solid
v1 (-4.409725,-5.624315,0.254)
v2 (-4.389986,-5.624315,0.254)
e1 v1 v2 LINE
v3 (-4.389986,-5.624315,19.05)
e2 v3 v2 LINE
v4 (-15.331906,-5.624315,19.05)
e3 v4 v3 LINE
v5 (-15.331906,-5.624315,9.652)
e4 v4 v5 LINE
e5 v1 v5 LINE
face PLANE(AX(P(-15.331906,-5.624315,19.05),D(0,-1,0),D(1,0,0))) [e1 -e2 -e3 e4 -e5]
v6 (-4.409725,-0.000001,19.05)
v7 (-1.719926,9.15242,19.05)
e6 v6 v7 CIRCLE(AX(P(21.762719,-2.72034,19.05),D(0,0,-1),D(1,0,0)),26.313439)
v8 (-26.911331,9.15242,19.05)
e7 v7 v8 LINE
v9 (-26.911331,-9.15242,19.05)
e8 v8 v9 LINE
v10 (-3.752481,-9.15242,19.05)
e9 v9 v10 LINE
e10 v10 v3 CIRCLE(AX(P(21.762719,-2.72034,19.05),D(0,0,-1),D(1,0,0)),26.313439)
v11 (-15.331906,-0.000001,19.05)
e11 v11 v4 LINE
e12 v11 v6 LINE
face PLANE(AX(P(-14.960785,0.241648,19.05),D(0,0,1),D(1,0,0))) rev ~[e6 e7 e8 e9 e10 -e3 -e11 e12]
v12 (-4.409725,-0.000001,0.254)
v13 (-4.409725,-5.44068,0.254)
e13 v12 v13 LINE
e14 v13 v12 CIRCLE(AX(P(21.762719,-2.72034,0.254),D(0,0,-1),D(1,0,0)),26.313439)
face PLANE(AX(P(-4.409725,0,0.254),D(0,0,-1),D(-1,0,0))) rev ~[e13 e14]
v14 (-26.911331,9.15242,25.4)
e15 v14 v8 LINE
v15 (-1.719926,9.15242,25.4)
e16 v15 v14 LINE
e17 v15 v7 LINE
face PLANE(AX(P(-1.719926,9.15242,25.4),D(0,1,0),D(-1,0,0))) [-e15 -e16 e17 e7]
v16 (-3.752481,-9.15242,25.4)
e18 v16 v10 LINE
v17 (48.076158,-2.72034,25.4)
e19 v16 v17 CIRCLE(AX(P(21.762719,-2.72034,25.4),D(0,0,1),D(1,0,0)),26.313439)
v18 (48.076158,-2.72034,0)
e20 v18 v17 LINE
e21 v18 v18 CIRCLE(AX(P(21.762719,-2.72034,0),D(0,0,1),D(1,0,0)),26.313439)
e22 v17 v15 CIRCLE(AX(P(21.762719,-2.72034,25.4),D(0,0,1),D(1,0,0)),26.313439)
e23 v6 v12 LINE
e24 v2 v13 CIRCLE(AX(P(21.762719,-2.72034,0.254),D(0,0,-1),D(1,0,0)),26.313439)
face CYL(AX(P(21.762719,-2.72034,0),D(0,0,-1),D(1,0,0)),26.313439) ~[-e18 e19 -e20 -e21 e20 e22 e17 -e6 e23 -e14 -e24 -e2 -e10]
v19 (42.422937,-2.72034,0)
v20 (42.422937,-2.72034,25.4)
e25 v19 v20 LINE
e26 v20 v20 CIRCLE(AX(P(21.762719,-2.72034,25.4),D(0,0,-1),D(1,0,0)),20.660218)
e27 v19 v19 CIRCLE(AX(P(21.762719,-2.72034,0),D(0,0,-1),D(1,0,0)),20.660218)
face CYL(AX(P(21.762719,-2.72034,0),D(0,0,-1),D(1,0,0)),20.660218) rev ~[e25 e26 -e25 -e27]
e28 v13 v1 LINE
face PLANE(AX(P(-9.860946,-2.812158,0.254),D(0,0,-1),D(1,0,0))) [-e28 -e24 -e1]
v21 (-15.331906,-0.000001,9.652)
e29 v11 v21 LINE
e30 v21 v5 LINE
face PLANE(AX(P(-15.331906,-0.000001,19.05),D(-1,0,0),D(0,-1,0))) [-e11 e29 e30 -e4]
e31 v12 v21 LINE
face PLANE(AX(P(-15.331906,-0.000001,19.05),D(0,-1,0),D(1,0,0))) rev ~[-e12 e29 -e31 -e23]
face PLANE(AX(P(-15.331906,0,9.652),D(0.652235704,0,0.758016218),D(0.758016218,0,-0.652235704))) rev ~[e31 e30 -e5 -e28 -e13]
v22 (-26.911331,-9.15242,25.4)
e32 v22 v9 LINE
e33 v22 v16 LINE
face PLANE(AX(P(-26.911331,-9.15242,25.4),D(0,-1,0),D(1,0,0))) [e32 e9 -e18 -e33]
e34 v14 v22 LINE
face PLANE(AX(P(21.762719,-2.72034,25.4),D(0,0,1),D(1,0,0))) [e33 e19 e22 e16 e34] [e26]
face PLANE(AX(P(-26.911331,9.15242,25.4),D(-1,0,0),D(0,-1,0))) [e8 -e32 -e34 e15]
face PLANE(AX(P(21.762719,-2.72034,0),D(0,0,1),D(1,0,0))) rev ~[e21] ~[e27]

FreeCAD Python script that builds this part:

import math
import FreeCAD as App
import Part
import Sketcher
from FreeCAD import Vector
Q = App.Units.Quantity

doc = App.newDocument("Part")
body = doc.addObject("PartDesign::Body", "Body")

sketch1 = body.newObject("Sketcher::SketchObject", "Sketch")
sketch1.AttachmentSupport = (doc.getObject("XY_Plane"), [""])
sketch1.MapMode = "FlatFace"
sketch1.addGeometry(Part.Circle(Vector(22, -3, 0), Vector(0, 0, 1), 26), False)
sketch1.addConstraint([
    Sketcher.Constraint("Diameter", 0, Q("52.626878 mm")),
    Sketcher.Constraint("DistanceX", -1, 1, 0, 3, Q("0.8568 in")),
    Sketcher.Constraint("DistanceY", 0, 3, -1, 1, Q("0.1071 in")),
])
pad1 = body.newObject("PartDesign::Pad", "Pad")
pad1.Profile = sketch1
pad1.Length = Q("1 in")

sketch2 = body.newObject("Sketcher::SketchObject", "Sketch001")
sketch2.AttachmentSupport = (doc.getObject("XY_Plane"), [""])
sketch2.MapMode = "FlatFace"
sketch2.addGeometry(Part.Circle(Vector(22, -3, 0), Vector(0, 0, 1), 21), False)
sketch2.addConstraint([
    Sketcher.Constraint("Diameter", 0, Q("41.320436 mm")),
    Sketcher.Constraint("DistanceX", -1, 1, 0, 3, Q("0.8568 in")),
    Sketcher.Constraint("DistanceY", 0, 3, -1, 1, Q("0.1071 in")),
])
pocket1 = body.newObject("PartDesign::Pocket", "Pocket")
pocket1.Profile = sketch2
pocket1.Type = "ThroughAll"
pocket1.Reversed = True

sketch3 = body.newObject("Sketcher::SketchObject", "Sketch002")
sketch3.AttachmentSupport = (doc.getObject("XY_Plane"), [""])
sketch3.MapMode = "FlatFace"
sketch3.AttachmentOffset = App.Placement(Vector(0, 0, 1 * 25.4), App.Rotation())
sketch3.addGeometry([
    Part.ArcOfCircle(Part.Circle(Vector(22, -3, 0), Vector(0, 0, 1), 26), math.radians(153), math.radians(194)),
    Part.LineSegment(Vector(-2, 9, 0), Vector(-27, 9, 0)),
    Part.LineSegment(Vector(-27, 9, 0), Vector(-27, -9, 0)),
    Part.LineSegment(Vector(-27, -9, 0), Vector(-4, -9, 0)),
], False)
sketch3.addConstraint([
    Sketcher.Constraint("Coincident", 0, 1, 1, 1),
    Sketcher.Constraint("Coincident", 1, 2, 2, 1),
    Sketcher.Constraint("Coincident", 2, 2, 3, 1),
    Sketcher.Constraint("Coincident", 3, 2, 0, 2),
    Sketcher.Constraint("Horizontal", 1),
    Sketcher.Constraint("Vertical", 2),
    Sketcher.Constraint("Horizontal", 3),
    Sketcher.Constraint("DistanceX", -1, 1, 0, 3, Q("0.8567998 in")),
    Sketcher.Constraint("DistanceY", 0, 3, -1, 1, Q("0.1071 in")),
    Sketcher.Constraint("Radius", 0, Q("26.313436 mm")),
    Sketcher.Constraint("DistanceX", 3, 1, 3, 2, Q("23.158851 mm")),
    Sketcher.Constraint("DistanceY", 2, 2, 2, 1, Q("18.30484 mm")),
    Sketcher.Constraint("DistanceX", 1, 2, 1, 1, Q("25.191405 mm")),
])
pad2 = body.newObject("PartDesign::Pad", "Pad001")
pad2.Profile = sketch3
pad2.Length = Q("0.25 in")
pad2.Reversed = True

sketch4 = body.newObject("Sketcher::SketchObject", "Sketch003")
sketch4.AttachmentSupport = (doc.getObject("XY_Plane"), [""])
sketch4.MapMode = "FlatFace"
sketch4.AttachmentOffset = App.Placement(Vector(0, 0, 0.75 * 25.4), App.Rotation())
sketch4.addGeometry([
    Part.LineSegment(Vector(-15, -6, 0), Vector(-15, 0, 0)),
    Part.LineSegment(Vector(-15, 0, 0), Vector(-4, 0, 0)),
    Part.LineSegment(Vector(-4, 0, 0), Vector(-4, -6, 0)),
    Part.LineSegment(Vector(-4, -6, 0), Vector(-15, -6, 0)),
], False)
sketch4.addConstraint([
    Sketcher.Constraint("Coincident", 0, 2, 1, 1),
    Sketcher.Constraint("Coincident", 1, 2, 2, 1),
    Sketcher.Constraint("Coincident", 2, 2, 3, 1),
    Sketcher.Constraint("Coincident", 3, 2, 0, 1),
    Sketcher.Constraint("Vertical", 0),
    Sketcher.Constraint("Horizontal", 1),
    Sketcher.Constraint("Vertical", 2),
    Sketcher.Constraint("Horizontal", 3),
    Sketcher.Constraint("PointOnObject", 0, 2, -1),
    Sketcher.Constraint("DistanceX", 1, 1, 1, 2, Q("10.94192 mm")),
    Sketcher.Constraint("DistanceY", 0, 1, 0, 2, Q("5.624315 mm")),
    Sketcher.Constraint("DistanceX", 0, 2, -1, 1, Q("15.331906 mm")),
])
pad3 = body.newObject("PartDesign::Pad", "Pad002")
pad3.Profile = sketch4
pad3.Length = Q("0.74 in")
pad3.Reversed = True

sketch5 = body.newObject("Sketcher::SketchObject", "Sketch004")
sketch5.AttachmentSupport = (doc.getObject("XZ_Plane"), [""])
sketch5.MapMode = "FlatFace"
sketch5.addGeometry([
    Part.LineSegment(Vector(-15, 0, 0), Vector(-15, 10, 0)),
    Part.LineSegment(Vector(-15, 10, 0), Vector(-4, 0, 0)),
    Part.LineSegment(Vector(-4, 0, 0), Vector(-15, 0, 0)),
], False)
sketch5.addConstraint([
    Sketcher.Constraint("Coincident", 0, 2, 1, 1),
    Sketcher.Constraint("Coincident", 1, 2, 2, 1),
    Sketcher.Constraint("Coincident", 2, 2, 0, 1),
    Sketcher.Constraint("Vertical", 0),
    Sketcher.Constraint("Horizontal", 2),
    Sketcher.Constraint("DistanceY", 0, 1, 0, 2, Q("0.37 in")),
    Sketcher.Constraint("DistanceY", -1, 1, 0, 2, Q("0.38 in")),
    Sketcher.Constraint("Distance", 1, Q("14.408901 mm")),
    Sketcher.Constraint("DistanceX", 0, 2, -1, 1, Q("15.331906 mm")),
])
pocket2 = body.newObject("PartDesign::Pocket", "Pocket001")
pocket2.Profile = sketch5
pocket2.Type = "ThroughAll"
pocket2.Reversed = True

doc.recompute()
